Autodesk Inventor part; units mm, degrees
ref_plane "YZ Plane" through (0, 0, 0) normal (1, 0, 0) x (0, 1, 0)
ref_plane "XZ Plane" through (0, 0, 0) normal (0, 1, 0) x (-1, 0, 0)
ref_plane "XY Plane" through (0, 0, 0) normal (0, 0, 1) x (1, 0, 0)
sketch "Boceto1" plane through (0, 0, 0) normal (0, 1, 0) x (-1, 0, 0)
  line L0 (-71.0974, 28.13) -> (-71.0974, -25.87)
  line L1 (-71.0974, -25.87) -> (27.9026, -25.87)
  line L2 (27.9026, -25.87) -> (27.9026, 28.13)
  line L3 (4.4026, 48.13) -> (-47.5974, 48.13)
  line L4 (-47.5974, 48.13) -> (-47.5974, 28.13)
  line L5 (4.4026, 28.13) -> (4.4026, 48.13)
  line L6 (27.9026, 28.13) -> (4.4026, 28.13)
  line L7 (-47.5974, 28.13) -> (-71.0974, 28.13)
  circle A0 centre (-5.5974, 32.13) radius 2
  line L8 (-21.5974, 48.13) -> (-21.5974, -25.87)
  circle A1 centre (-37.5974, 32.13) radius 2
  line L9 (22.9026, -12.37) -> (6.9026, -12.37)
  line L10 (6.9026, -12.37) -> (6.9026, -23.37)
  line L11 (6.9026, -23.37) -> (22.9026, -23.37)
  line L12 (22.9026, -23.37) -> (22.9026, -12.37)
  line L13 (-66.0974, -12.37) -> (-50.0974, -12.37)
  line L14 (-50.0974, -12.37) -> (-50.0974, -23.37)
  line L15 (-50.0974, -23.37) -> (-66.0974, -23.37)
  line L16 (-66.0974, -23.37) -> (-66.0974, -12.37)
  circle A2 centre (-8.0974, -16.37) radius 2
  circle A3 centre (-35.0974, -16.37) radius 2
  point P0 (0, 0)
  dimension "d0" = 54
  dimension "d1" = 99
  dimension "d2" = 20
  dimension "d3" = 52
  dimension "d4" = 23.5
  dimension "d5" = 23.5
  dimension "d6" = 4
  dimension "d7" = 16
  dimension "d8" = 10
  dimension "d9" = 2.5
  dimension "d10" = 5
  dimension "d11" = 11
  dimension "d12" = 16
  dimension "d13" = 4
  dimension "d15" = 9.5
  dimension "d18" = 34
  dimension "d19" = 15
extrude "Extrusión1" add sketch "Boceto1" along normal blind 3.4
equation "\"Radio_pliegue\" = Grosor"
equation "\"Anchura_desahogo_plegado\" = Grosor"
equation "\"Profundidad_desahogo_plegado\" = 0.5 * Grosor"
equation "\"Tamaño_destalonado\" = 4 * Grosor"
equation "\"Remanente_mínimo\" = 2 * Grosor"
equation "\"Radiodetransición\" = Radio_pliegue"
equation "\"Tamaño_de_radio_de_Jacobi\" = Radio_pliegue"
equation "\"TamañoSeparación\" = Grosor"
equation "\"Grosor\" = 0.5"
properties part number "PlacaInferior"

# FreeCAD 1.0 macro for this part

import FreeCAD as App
import Part
import Sketcher

V = App.Vector


def add_polygon(sketch, points):
    """Adds a closed chain of lines whose ends are joined by coincident constraints."""
    first, n = sketch.GeometryCount, len(points)
    for a, b in zip(points, points[1:] + points[:1]):
        sketch.addGeometry(Part.LineSegment(App.Vector(*a, 0), App.Vector(*b, 0)), False)
    for i in range(n):
        sketch.addConstraint(Sketcher.Constraint("Coincident", first + i, 2, first + (i + 1) % n, 1))

doc = App.newDocument("Part")
body = doc.addObject("PartDesign::Body", "Body")

# Sketch on XZ plane
sketch1 = doc.addObject("Sketcher::SketchObject", "Sketch")
body.addObject(sketch1)
sketch1.AttachmentSupport = (doc.XZ_Plane, [""])
sketch1.MapMode = "FlatFace"
add_polygon(sketch1, [(47.5974, 28.13), (71.0974, 28.13), (71.0974, -25.87), (-27.9026, -25.87), (-27.9026, 28.13), (-4.4026, 28.13), (-4.4026, 48.13), (47.5974, 48.13)])  # lines 0-7
add_polygon(sketch1, [(66.0974, -23.37), (66.0974, -12.37), (50.0974, -12.37), (50.0974, -23.37)])  # lines 8-11
sketch1.addGeometry(Part.Circle(V(35.0974, -16.37, 0), V(0, 0, 1), 2), False)  # 12
sketch1.addGeometry(Part.Circle(V(37.5974, 32.13, 0), V(0, 0, 1), 2), False)  # 13
sketch1.addGeometry(Part.Circle(V(5.5974, 32.13, 0), V(0, 0, 1), 2), False)  # 14
sketch1.addGeometry(Part.Circle(V(8.0974, -16.37, 0), V(0, 0, 1), 2), False)  # 15
add_polygon(sketch1, [(-6.9026, -12.37), (-22.9026, -12.37), (-22.9026, -23.37), (-6.9026, -23.37)])  # lines 16-19
sketch1.addConstraint([
    Sketcher.Constraint("Horizontal", 0),
    Sketcher.Constraint("Vertical", 1),
    Sketcher.Constraint("Horizontal", 2),
    Sketcher.Constraint("Vertical", 3),
    Sketcher.Constraint("Horizontal", 4),
    Sketcher.Constraint("Vertical", 5),
    Sketcher.Constraint("Horizontal", 6),
    Sketcher.Constraint("Vertical", 7),
    Sketcher.Constraint("Vertical", 8),
    Sketcher.Constraint("Horizontal", 9),
    Sketcher.Constraint("Vertical", 10),
    Sketcher.Constraint("Horizontal", 11),
    Sketcher.Constraint("Horizontal", 16),
    Sketcher.Constraint("Vertical", 17),
    Sketcher.Constraint("Horizontal", 18),
    Sketcher.Constraint("Vertical", 19),
    Sketcher.Constraint("Equal", 12, 13),
    Sketcher.Constraint("Equal", 13, 14),
    Sketcher.Constraint("Equal", 14, 15),
    Sketcher.Constraint("Horizontal", 13, 3, 14, 3),
    Sketcher.Constraint("Horizontal", 12, 3, 15, 3),
    Sketcher.Constraint("Horizontal", 0, 2, 3, 2),
    Sketcher.Constraint("Horizontal", 9, 2, 16, 2),
    Sketcher.Constraint("Horizontal", 11, 2, 17, 2),
    Sketcher.Constraint("Equal", 0, 4),
    Sketcher.Constraint("Equal", 11, 16),
    Sketcher.Constraint("Diameter", 12, 4.0),
    Sketcher.Constraint("DistanceX", 2, 2, 2, 1, 99.0),
    Sketcher.Constraint("DistanceX", 6, 1, 6, 2, 52.0),
    Sketcher.Constraint("DistanceX", 9, 2, 9, 1, 16.0),
    Sketcher.Constraint("DistanceY", 1, 2, 1, 1, 54.0),
    Sketcher.Constraint("DistanceY", 5, 1, 5, 2, 20.0),
    Sketcher.Constraint("DistanceY", 8, 1, 8, 2, 11.0),
    Sketcher.Constraint("DistanceY", 0, 2, 13, 3, 4.0),
    Sketcher.Constraint("DistanceX", 4, 2, 14, 3, 10.0),
    Sketcher.Constraint("DistanceX", 13, 3, 6, 2, 10.0),
    Sketcher.Constraint("DistanceX", 8, 2, 1, 2, 5.0),
    Sketcher.Constraint("DistanceY", 12, 3, 8, 2, 4.0),
    Sketcher.Constraint("DistanceX", 12, 3, 9, 2, 15.0),
    Sketcher.Constraint("DistanceX", 2, 2, 16, 2, 5.0),
    Sketcher.Constraint("DistanceX", 18, 2, 15, 3, 15.0),
    Sketcher.Constraint("DistanceY", 1, 2, 12, 3, 9.5),
    Sketcher.Constraint("DistanceY", 12, 3, -1, 1, 16.37),
    Sketcher.Constraint("DistanceX", -1, 1, 12, 3, 35.0974),
])
pad1 = doc.addObject("PartDesign::Pad", "Pad")
body.addObject(pad1)
pad1.Profile = sketch1
pad1.Length = 3.4
pad1.Reversed = True

doc.recompute()
